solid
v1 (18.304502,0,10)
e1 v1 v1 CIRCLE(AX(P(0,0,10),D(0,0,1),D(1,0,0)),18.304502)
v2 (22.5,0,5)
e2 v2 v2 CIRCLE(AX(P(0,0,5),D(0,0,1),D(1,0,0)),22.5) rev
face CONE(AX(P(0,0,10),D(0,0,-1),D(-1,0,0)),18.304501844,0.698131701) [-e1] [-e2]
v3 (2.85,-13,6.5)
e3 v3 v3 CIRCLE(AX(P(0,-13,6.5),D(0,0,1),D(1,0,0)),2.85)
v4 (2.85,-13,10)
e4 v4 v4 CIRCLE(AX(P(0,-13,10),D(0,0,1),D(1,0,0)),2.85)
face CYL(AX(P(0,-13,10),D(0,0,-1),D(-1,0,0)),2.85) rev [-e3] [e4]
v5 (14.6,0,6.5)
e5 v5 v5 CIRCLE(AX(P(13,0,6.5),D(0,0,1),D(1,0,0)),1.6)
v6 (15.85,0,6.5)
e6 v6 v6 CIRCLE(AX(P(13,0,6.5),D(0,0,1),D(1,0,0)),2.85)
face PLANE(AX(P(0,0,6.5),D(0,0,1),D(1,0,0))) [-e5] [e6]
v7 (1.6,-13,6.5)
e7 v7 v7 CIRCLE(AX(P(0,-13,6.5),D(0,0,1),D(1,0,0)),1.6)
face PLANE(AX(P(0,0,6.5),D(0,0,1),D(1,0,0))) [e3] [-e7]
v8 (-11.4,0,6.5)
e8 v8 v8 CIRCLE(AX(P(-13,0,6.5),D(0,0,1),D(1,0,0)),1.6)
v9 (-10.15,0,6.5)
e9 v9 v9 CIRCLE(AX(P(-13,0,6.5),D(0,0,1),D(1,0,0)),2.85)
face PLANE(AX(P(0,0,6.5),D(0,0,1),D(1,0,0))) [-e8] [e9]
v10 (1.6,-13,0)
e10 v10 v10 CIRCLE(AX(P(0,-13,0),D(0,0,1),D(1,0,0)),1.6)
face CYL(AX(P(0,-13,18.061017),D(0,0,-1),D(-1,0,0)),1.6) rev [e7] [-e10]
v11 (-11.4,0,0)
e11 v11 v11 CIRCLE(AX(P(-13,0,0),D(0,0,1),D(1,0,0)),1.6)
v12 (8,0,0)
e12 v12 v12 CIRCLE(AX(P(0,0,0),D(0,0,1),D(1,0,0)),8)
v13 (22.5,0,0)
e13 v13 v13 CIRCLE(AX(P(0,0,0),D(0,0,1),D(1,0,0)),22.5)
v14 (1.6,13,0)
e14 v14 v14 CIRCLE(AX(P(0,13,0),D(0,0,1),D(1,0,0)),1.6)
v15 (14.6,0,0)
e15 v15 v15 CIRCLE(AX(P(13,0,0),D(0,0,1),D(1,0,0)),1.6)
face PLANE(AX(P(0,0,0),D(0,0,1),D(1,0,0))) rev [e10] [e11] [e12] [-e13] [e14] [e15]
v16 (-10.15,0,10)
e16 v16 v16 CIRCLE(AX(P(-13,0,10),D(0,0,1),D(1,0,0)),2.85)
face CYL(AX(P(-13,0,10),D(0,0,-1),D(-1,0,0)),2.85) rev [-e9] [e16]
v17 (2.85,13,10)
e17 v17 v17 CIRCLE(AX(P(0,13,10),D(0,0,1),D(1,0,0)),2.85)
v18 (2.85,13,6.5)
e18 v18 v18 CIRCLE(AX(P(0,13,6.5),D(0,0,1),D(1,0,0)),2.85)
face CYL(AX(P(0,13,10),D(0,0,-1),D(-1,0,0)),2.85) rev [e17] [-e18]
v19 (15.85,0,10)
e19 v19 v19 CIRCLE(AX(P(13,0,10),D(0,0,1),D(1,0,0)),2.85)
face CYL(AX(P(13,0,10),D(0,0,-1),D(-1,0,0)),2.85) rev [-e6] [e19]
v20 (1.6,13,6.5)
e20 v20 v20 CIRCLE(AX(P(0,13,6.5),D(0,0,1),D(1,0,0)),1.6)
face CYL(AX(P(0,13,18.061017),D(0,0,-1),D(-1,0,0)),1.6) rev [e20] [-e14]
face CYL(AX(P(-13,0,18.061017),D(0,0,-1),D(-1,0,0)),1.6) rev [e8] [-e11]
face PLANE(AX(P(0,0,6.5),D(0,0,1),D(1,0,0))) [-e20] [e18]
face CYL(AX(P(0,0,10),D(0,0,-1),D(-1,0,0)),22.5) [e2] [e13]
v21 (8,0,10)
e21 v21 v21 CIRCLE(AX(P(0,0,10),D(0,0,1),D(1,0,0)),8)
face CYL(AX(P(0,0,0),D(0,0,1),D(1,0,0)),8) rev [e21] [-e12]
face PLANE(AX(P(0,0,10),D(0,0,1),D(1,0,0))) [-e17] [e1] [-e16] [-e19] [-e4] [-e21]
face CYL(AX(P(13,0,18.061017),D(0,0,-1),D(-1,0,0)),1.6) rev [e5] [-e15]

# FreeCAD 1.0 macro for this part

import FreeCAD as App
import Part
import Sketcher

V = App.Vector


def edges_at(feature, points):
    """Names of the edges that pass closest to the given points."""
    edges = feature.Shape.Edges
    near = lambda p: min(range(len(edges)), key=lambda i: edges[i].distToShape(Part.Vertex(*p))[0])
    return sorted({f"Edge{near(p) + 1}" for p in points})

doc = App.newDocument("Part")
body = doc.addObject("PartDesign::Body", "Body")

# Sketch on XY plane
sketch1 = body.newObject("Sketcher::SketchObject", "Sketch")
sketch1.AttachmentSupport = (doc.getObject("XY_Plane"), [""])
sketch1.MapMode = "FlatFace"
sketch1.addGeometry(Part.Circle(V(0, 0, 0), V(0, 0, 1), 22.5), False)
sketch1.addGeometry(Part.Circle(V(13, 0, 0), V(0, 0, 1), 2.9), False)
sketch1.addGeometry(Part.Circle(V(0, -13, 0), V(0, 0, 1), 2.9), False)
sketch1.addGeometry(Part.Circle(V(0, 13, 0), V(0, 0, 1), 2.9), False)
sketch1.addGeometry(Part.Circle(V(-13, 0, 0), V(0, 0, 1), 2.9), False)
sketch1.addConstraint(Sketcher.Constraint("Coincident", 0, 3, -1, 1))
sketch1.addConstraint(Sketcher.Constraint("Equal", 1, 2))
sketch1.addConstraint(Sketcher.Constraint("Equal", 2, 3))
sketch1.addConstraint(Sketcher.Constraint("Equal", 3, 4))
sketch1.addConstraint(Sketcher.Constraint("Symmetric", 2, 3, 3, 3, -1, 1))
sketch1.addConstraint(Sketcher.Constraint("Symmetric", 1, 3, 4, 3, -1, 1))
sketch1.addConstraint(Sketcher.Constraint("PointOnObject", 1, 3, -1))
sketch1.addConstraint(Sketcher.Constraint("PointOnObject", 2, 3, -2))
sketch1.addConstraint(Sketcher.Constraint("Diameter", 0, 45.0))
sketch1.addConstraint(Sketcher.Constraint("Diameter", 1, 5.7))
sketch1.addConstraint(Sketcher.Constraint("DistanceX", -1, 1, 1, 3, 13.0))
sketch1.addConstraint(Sketcher.Constraint("DistanceY", 2, 3, -1, 1, 13.0))
pad1 = body.newObject("PartDesign::Pad", "Pad")
pad1.Profile = sketch1
pad1.Length = 10

# Sketch on XY plane
sketch2 = body.newObject("Sketcher::SketchObject", "Sketch001")
sketch2.AttachmentSupport = (doc.getObject("XY_Plane"), [""])
sketch2.MapMode = "FlatFace"
sketch2.addGeometry(Part.Circle(V(0, -13, 0), V(0, 0, 1), 2.9), False)
sketch2.addGeometry(Part.Circle(V(0, -13, 0), V(0, 0, 1), 1.6), False)
sketch2.addGeometry(Part.Circle(V(-13, 0, 0), V(0, 0, 1), 2.9), False)
sketch2.addGeometry(Part.Circle(V(-13, 0, 0), V(0, 0, 1), 1.6), False)
sketch2.addGeometry(Part.Circle(V(0, 13, 0), V(0, 0, 1), 2.9), False)
sketch2.addGeometry(Part.Circle(V(0, 13, 0), V(0, 0, 1), 1.6), False)
sketch2.addGeometry(Part.Circle(V(13, 0, 0), V(0, 0, 1), 2.9), False)
sketch2.addGeometry(Part.Circle(V(13, 0, 0), V(0, 0, 1), 1.6), False)
sketch2.addConstraint(Sketcher.Constraint("Coincident", 1, 3, 0, 3))
sketch2.addConstraint(Sketcher.Constraint("Coincident", 3, 3, 2, 3))
sketch2.addConstraint(Sketcher.Constraint("Coincident", 5, 3, 4, 3))
sketch2.addConstraint(Sketcher.Constraint("Coincident", 7, 3, 6, 3))
sketch2.addConstraint(Sketcher.Constraint("Equal", 0, 2))
sketch2.addConstraint(Sketcher.Constraint("Equal", 1, 3))
sketch2.addConstraint(Sketcher.Constraint("Equal", 2, 4))
sketch2.addConstraint(Sketcher.Constraint("Equal", 3, 5))
sketch2.addConstraint(Sketcher.Constraint("Equal", 4, 6))
sketch2.addConstraint(Sketcher.Constraint("Equal", 5, 7))
sketch2.addConstraint(Sketcher.Constraint("Symmetric", 0, 3, 4, 3, -1, 1))
sketch2.addConstraint(Sketcher.Constraint("Symmetric", 2, 3, 6, 3, -1, 1))
sketch2.addConstraint(Sketcher.Constraint("PointOnObject", 0, 3, -2))
sketch2.addConstraint(Sketcher.Constraint("PointOnObject", 2, 3, -1))
sketch2.addConstraint(Sketcher.Constraint("Diameter", 0, 5.7))
sketch2.addConstraint(Sketcher.Constraint("Diameter", 1, 3.2))
sketch2.addConstraint(Sketcher.Constraint("DistanceY", 0, 3, -1, 1, 13.0))
sketch2.addConstraint(Sketcher.Constraint("DistanceX", 2, 3, -1, 1, 13.0))
pad2 = body.newObject("PartDesign::Pad", "Pad001")
pad2.Profile = sketch2
pad2.Length = 6.5
doc.recompute()

chamfer = body.newObject("PartDesign::Chamfer", "Chamfer")
chamfer.Base = (pad2, edges_at(pad2, [(0, -22.5, 10)]))
chamfer.ChamferType = "Two distances"
chamfer.Size = 5
chamfer.Size2 = 4.195498

# Sketch on XY plane
sketch3 = body.newObject("Sketcher::SketchObject", "Sketch002")
sketch3.AttachmentSupport = (doc.getObject("XY_Plane"), [""])
sketch3.MapMode = "FlatFace"
sketch3.AttachmentOffset = App.Placement(V(0, 0, 10), App.Rotation())
sketch3.addGeometry(Part.Circle(V(0, 0, 0), V(0, 0, 1), 8), False)
sketch3.addConstraint(Sketcher.Constraint("Coincident", 0, 3, -1, 1))
sketch3.addConstraint(Sketcher.Constraint("Diameter", 0, 16.0))
pocket1 = body.newObject("PartDesign::Pocket", "Pocket")
pocket1.Profile = sketch3
pocket1.Type = "ThroughAll"
pocket1.Midplane = True

doc.recompute()
